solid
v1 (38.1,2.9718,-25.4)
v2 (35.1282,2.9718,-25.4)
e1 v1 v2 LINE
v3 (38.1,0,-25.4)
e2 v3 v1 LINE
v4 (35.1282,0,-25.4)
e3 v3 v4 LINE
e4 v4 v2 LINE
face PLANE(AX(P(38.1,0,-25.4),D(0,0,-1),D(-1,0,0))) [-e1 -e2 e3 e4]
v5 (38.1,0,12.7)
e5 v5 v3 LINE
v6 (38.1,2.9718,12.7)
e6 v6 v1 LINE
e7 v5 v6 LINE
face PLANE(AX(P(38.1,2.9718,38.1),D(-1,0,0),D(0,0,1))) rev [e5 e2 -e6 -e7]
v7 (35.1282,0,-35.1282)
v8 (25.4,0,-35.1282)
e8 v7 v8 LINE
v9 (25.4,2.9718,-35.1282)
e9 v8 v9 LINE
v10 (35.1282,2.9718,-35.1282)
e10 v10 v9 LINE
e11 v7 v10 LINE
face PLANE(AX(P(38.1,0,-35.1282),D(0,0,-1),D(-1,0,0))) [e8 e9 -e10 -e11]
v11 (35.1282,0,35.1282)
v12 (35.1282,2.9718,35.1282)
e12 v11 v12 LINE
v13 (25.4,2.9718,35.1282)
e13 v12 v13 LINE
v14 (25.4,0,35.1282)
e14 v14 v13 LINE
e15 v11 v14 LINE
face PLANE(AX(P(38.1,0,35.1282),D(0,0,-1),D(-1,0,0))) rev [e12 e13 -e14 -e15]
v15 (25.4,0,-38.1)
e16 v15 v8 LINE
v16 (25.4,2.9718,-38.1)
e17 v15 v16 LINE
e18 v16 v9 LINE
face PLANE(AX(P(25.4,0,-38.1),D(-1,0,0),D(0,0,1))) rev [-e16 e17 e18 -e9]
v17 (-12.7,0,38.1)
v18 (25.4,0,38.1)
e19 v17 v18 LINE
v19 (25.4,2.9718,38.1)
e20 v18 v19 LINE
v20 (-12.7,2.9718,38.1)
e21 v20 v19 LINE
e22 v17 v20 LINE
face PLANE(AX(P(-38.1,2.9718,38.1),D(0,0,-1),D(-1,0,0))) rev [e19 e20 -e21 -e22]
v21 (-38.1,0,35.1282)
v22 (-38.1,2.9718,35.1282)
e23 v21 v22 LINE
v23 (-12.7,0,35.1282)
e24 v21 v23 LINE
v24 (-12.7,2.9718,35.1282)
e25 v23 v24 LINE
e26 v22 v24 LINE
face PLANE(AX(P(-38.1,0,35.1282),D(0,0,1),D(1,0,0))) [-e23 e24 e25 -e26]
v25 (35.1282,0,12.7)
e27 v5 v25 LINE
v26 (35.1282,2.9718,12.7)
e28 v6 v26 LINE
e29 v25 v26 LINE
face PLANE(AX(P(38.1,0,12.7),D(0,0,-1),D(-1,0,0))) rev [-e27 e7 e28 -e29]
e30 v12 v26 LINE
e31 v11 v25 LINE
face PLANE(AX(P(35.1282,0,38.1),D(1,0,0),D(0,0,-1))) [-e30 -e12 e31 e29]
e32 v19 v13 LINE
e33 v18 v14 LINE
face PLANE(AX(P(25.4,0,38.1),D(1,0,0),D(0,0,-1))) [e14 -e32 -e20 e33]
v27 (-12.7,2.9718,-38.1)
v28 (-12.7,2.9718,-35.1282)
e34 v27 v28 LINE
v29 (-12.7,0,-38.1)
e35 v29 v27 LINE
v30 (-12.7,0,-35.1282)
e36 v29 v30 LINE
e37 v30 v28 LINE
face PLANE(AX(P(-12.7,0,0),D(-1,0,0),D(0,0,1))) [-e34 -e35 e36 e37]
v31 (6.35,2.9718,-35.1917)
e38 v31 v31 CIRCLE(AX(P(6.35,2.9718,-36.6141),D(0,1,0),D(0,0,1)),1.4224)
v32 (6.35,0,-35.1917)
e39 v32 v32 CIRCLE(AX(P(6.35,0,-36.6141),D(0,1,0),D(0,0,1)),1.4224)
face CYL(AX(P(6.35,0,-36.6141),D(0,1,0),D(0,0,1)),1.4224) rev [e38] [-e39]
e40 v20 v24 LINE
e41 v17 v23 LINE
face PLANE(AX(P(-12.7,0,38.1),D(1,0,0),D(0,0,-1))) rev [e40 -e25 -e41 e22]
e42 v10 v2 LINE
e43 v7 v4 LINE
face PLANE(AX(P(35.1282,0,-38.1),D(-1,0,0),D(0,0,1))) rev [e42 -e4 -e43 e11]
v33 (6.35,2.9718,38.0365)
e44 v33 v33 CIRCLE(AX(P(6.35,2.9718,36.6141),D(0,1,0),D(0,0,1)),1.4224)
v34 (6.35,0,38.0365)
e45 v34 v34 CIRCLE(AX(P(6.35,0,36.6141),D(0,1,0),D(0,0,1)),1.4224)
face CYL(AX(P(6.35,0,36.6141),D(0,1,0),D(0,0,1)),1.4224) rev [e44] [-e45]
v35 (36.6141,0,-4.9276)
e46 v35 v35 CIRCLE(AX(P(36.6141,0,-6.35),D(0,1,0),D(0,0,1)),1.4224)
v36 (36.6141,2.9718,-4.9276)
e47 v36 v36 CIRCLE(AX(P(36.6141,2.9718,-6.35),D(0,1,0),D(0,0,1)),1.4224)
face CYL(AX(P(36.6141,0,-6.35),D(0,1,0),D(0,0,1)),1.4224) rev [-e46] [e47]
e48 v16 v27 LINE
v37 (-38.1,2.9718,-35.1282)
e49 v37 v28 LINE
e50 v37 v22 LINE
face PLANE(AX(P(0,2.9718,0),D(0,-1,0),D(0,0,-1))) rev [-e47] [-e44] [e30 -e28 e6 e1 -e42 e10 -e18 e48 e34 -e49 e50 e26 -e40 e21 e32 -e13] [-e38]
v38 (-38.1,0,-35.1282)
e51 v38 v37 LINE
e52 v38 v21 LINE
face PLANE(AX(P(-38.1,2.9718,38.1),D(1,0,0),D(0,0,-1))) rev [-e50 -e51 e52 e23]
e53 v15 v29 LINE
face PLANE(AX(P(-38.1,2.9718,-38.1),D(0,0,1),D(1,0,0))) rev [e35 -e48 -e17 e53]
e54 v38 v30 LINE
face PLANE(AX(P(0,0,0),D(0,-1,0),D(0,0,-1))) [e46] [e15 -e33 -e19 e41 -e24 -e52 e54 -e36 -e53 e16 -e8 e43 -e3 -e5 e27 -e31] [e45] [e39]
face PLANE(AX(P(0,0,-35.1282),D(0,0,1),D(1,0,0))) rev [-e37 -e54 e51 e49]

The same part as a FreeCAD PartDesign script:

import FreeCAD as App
import Part
import Sketcher

V = App.Vector
Q = App.Units.Quantity


def add_polygon(sketch, points):
    """Adds a closed chain of lines whose ends are joined by coincident constraints."""
    first, n = sketch.GeometryCount, len(points)
    for a, b in zip(points, points[1:] + points[:1]):
        sketch.addGeometry(Part.LineSegment(App.Vector(*a, 0), App.Vector(*b, 0)), False)
    for i in range(n):
        sketch.addConstraint(Sketcher.Constraint("Coincident", first + i, 2, first + (i + 1) % n, 1))

doc = App.newDocument("Part")
body = doc.addObject("PartDesign::Body", "Body")

# Sketch on XZ plane
sketch1 = body.newObject("Sketcher::SketchObject", "Sketch")
sketch1.AttachmentSupport = (doc.getObject("XZ_Plane"), [""])
sketch1.MapMode = "FlatFace"
add_polygon(sketch1, [(-38, -38), (-38, 38), (38, 38), (38, -38)])  # lines 0-3
sketch1.addConstraint(Sketcher.Constraint("Vertical", 0))
sketch1.addConstraint(Sketcher.Constraint("Horizontal", 1))
sketch1.addConstraint(Sketcher.Constraint("Vertical", 2))
sketch1.addConstraint(Sketcher.Constraint("Horizontal", 3))
sketch1.addConstraint(Sketcher.Constraint("Symmetric", 0, 2, 2, 2, -1, 1))
sketch1.addConstraint(Sketcher.Constraint("Equal", 3, 0))
sketch1.addConstraint(Sketcher.Constraint("DistanceX", 1, 1, 1, 2, Q("3 in")))
pad1 = body.newObject("PartDesign::Pad", "Pad")
pad1.Profile = sketch1
pad1.Length = Q("0.117 in")
pad1.Reversed = True

# Sketch on XZ plane
sketch2 = body.newObject("Sketcher::SketchObject", "Sketch001")
sketch2.AttachmentSupport = (doc.getObject("XZ_Plane"), [""])
sketch2.MapMode = "FlatFace"
sketch2.AttachmentOffset = App.Placement(V(0, 0, -0.117 * 25.4), App.Rotation())
add_polygon(sketch2, [(-38.1, -38.1), (-38.1, -35.1), (-12.7, -35.1), (-12.7, -38.1)])  # lines 0-3
add_polygon(sketch2, [(25.4, -38.1), (25.4, -35.1), (35.1, -35.1), (35.1, -25.4), (38.1, -25.4), (38.1, -38.1)])  # lines 4-9
add_polygon(sketch2, [(38.1, 38.1), (38.1, 12.7), (35.1, 12.7), (35.1, 35.1), (25.4, 35.1), (25.4, 38.1)])  # lines 10-15
sketch2.addGeometry(Part.Circle(V(36.6, -6.3, 0), V(0, 0, 1), 1.4), False)  # 16
sketch2.addGeometry(Part.Circle(V(6.3, -36.6, 0), V(0, 0, 1), 1.4), False)  # 17
sketch2.addGeometry(Part.Circle(V(6.3, 36.6, 0), V(0, 0, 1), 1.4), False)  # 18
add_polygon(sketch2, [(-38.1, 35.1), (-38.1, 38.1), (-12.7, 38.1), (-12.7, 35.1)])  # lines 19-22
sketch2.addConstraint(Sketcher.Constraint("Vertical", 0))
sketch2.addConstraint(Sketcher.Constraint("Horizontal", 1))
sketch2.addConstraint(Sketcher.Constraint("Vertical", 2))
sketch2.addConstraint(Sketcher.Constraint("Horizontal", 3))
sketch2.addConstraint(Sketcher.Constraint("Vertical", 4))
sketch2.addConstraint(Sketcher.Constraint("Horizontal", 5))
sketch2.addConstraint(Sketcher.Constraint("Vertical", 6))
sketch2.addConstraint(Sketcher.Constraint("Horizontal", 7))
sketch2.addConstraint(Sketcher.Constraint("Vertical", 8))
sketch2.addConstraint(Sketcher.Constraint("Horizontal", 9))
sketch2.addConstraint(Sketcher.Constraint("Vertical", 10))
sketch2.addConstraint(Sketcher.Constraint("Horizontal", 11))
sketch2.addConstraint(Sketcher.Constraint("Vertical", 12))
sketch2.addConstraint(Sketcher.Constraint("Horizontal", 13))
sketch2.addConstraint(Sketcher.Constraint("Vertical", 14))
sketch2.addConstraint(Sketcher.Constraint("Horizontal", 15))
sketch2.addConstraint(Sketcher.Constraint("Vertical", 19))
sketch2.addConstraint(Sketcher.Constraint("Horizontal", 20))
sketch2.addConstraint(Sketcher.Constraint("Vertical", 21))
sketch2.addConstraint(Sketcher.Constraint("Horizontal", 22))
sketch2.addConstraint(Sketcher.Constraint("Equal", 16, 17))
sketch2.addConstraint(Sketcher.Constraint("Equal", 17, 18))
sketch2.addConstraint(Sketcher.Constraint("Symmetric", 3, 2, 15, 2, -1, 1))
sketch2.addConstraint(Sketcher.Constraint("Symmetric", 8, 2, 19, 2, -1, 1))
sketch2.addConstraint(Sketcher.Constraint("Symmetric", 3, 2, 8, 2, -2))
sketch2.addConstraint(Sketcher.Constraint("Symmetric", 17, 3, 18, 3, -1))
sketch2.addConstraint(Sketcher.Constraint("Symmetric", 5, 2, 12, 2, -1))
sketch2.addConstraint(Sketcher.Constraint("Symmetric", 1, 2, 21, 2, -1))
sketch2.addConstraint(Sketcher.Constraint("Horizontal", 1, 2, 4, 2))
sketch2.addConstraint(Sketcher.Constraint("Vertical", 9, 2, 13, 2))
sketch2.addConstraint(Sketcher.Constraint("Equal", 11, 0))
sketch2.addConstraint(Sketcher.Constraint("Equal", 13, 6))
sketch2.addConstraint(Sketcher.Constraint("Equal", 22, 10))
sketch2.addConstraint(Sketcher.Constraint("DistanceX", 1, 1, 1, 2, Q("1 in")))
sketch2.addConstraint(Sketcher.Constraint("Diameter", 16, Q("0.112 in")))
sketch2.addConstraint(Sketcher.Constraint("DistanceX", 9, 2, 9, 1, Q("0.5 in")))
sketch2.addConstraint(Sketcher.Constraint("DistanceX", -1, 1, 4, 2, Q("1 in")))
sketch2.addConstraint(Sketcher.Constraint("DistanceY", 6, 2, -1, 1, Q("1 in")))
sketch2.addConstraint(Sketcher.Constraint("DistanceX", 5, 1, 5, 2, Q("0.383 in")))
sketch2.addConstraint(Sketcher.Constraint("DistanceY", 16, 3, -1, 1, Q("0.25 in")))
sketch2.addConstraint(Sketcher.Constraint("DistanceX", -1, 1, 17, 3, Q("0.25 in")))
sketch2.addConstraint(Sketcher.Constraint("DistanceY", 17, 3, 18, 3, Q("2.883 in")))
sketch2.addConstraint(Sketcher.Constraint("DistanceX", -1, 1, 16, 3, Q("1.4415 in")))
pocket1 = body.newObject("PartDesign::Pocket", "Pocket")
pocket1.Profile = sketch2
pocket1.Type = "ThroughAll"
pocket1.Reversed = True

doc.recompute()
